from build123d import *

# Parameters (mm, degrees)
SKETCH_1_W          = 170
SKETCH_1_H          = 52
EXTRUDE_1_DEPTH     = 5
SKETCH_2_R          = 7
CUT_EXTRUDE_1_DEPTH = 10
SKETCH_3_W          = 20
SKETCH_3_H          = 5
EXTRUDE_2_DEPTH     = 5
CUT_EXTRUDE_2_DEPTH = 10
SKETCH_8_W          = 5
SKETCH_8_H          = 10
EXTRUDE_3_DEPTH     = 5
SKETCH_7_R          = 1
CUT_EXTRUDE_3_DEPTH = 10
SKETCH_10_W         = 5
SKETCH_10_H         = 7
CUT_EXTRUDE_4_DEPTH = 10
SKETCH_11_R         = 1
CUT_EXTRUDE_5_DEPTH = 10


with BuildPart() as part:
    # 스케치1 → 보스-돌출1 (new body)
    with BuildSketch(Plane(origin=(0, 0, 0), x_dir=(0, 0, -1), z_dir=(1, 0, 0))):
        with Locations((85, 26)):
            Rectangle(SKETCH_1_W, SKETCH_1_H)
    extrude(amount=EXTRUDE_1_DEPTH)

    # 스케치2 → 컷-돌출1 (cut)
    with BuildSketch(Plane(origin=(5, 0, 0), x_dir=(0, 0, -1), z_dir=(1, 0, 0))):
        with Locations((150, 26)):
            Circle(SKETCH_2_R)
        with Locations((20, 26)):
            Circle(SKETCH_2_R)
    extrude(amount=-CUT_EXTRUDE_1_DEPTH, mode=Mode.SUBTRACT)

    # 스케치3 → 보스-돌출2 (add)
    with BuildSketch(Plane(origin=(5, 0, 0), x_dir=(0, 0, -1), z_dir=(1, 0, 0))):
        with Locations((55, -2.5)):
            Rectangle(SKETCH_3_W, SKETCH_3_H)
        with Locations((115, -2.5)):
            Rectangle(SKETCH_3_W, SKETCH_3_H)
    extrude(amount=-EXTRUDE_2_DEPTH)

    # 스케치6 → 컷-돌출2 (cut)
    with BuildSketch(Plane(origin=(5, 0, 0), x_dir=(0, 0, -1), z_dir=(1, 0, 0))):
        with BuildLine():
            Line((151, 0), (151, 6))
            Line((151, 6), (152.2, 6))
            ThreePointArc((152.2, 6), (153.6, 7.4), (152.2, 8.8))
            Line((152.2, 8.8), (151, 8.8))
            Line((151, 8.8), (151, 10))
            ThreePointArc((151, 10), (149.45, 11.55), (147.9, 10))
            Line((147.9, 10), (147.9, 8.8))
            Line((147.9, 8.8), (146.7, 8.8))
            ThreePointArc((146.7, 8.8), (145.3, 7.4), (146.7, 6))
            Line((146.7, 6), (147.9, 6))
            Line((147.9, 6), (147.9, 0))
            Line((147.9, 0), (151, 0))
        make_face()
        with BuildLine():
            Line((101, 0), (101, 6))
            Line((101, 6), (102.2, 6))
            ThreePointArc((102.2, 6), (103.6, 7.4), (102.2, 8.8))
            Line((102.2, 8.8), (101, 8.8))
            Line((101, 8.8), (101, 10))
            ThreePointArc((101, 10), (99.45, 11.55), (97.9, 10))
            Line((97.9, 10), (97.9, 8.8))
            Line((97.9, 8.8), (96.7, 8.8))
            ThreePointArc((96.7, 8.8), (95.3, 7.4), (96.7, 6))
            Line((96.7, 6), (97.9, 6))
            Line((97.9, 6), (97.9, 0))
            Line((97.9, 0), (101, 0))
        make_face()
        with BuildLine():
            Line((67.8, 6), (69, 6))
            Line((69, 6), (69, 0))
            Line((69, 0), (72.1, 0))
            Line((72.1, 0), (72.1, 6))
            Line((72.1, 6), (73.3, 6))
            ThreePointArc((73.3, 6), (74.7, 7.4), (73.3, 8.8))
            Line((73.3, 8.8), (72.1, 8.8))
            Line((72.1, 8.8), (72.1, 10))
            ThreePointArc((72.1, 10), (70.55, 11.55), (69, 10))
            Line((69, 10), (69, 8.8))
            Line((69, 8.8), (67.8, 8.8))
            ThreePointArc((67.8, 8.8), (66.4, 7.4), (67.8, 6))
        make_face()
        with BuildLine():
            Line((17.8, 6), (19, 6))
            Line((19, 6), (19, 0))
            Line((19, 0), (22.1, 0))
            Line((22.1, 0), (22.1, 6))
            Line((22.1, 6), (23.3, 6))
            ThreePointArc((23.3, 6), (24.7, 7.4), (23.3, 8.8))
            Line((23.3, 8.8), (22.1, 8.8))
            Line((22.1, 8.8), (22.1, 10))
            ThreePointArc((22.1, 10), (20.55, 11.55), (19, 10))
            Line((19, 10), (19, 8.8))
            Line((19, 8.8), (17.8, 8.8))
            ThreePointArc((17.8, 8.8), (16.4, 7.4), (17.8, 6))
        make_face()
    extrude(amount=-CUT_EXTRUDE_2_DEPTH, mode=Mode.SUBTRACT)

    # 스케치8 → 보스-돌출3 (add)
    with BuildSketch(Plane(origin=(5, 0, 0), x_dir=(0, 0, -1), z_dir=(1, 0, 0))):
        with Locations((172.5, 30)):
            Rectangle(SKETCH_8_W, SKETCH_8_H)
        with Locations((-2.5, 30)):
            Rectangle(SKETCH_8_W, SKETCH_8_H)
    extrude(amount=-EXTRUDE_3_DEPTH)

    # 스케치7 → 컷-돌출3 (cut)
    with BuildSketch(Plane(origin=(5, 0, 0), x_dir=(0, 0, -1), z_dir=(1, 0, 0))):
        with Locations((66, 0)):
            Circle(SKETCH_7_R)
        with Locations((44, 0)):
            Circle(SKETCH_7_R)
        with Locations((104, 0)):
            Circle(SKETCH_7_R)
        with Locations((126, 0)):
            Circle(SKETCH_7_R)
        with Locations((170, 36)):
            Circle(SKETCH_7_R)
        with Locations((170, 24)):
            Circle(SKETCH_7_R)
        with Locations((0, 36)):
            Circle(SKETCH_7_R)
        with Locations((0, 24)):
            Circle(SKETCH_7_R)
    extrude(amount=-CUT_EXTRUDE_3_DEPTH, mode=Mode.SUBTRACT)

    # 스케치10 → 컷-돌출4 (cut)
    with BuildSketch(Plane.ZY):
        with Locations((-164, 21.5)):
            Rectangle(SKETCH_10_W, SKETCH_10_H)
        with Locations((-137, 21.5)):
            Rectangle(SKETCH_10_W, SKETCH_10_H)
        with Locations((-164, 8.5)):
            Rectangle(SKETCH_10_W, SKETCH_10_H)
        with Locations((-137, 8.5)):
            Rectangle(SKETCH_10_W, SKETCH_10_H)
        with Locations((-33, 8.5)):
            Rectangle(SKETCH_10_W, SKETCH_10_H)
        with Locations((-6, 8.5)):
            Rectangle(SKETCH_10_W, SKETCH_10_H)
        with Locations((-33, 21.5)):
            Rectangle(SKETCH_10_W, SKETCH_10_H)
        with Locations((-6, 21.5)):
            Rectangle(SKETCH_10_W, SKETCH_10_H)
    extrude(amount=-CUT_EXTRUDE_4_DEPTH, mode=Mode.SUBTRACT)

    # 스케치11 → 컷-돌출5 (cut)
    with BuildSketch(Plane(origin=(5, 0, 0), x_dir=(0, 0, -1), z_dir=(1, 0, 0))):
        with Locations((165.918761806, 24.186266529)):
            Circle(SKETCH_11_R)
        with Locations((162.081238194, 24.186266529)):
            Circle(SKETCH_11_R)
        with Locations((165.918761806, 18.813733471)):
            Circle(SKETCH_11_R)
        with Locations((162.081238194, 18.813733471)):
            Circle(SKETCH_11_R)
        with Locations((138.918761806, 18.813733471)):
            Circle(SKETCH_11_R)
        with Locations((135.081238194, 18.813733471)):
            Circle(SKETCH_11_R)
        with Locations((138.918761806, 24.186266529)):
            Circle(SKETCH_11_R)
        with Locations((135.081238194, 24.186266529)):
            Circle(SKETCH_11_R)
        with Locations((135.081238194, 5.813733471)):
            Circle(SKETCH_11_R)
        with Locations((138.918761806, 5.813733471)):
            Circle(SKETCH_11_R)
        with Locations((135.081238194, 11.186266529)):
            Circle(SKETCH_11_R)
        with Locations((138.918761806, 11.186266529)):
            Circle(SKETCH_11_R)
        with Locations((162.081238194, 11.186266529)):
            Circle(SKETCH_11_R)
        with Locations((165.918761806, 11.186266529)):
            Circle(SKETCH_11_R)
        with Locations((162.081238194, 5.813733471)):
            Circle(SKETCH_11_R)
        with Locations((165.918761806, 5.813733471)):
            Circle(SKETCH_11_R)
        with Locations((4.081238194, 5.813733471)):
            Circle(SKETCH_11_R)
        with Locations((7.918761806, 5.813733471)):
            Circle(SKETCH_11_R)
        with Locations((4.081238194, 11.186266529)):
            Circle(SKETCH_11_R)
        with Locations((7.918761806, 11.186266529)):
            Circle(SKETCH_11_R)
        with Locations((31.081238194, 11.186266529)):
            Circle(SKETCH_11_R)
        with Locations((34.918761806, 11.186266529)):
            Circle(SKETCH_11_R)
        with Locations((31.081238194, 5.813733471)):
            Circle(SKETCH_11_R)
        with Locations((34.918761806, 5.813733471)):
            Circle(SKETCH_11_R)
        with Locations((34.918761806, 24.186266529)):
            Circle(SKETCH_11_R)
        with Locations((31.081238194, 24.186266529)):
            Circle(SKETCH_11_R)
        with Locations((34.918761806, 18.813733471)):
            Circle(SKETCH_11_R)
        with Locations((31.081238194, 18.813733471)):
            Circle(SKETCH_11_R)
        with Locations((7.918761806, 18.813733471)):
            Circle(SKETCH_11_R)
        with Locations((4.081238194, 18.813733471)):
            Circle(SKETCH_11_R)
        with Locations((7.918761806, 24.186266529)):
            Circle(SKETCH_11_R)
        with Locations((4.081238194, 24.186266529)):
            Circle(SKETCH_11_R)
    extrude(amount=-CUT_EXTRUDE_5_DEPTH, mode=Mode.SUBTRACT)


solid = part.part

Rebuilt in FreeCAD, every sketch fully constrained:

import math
import FreeCAD as App
import Part
import Sketcher

V = App.Vector
Q = App.Units.Quantity

doc = App.newDocument("Part")
body = doc.addObject("PartDesign::Body", "Body")

# Sketch on YZ plane
sketch1 = body.newObject("Sketcher::SketchObject", "Sketch")
sketch1.AttachmentSupport = (doc.getObject("YZ_Plane"), [""])
sketch1.MapMode = "FlatFace"
sketch1.addGeometry([
    Part.LineSegment(V(52, 0, 0), V(0, 0, 0)),
    Part.LineSegment(V(0, 0, 0), V(0, -170, 0)),
    Part.LineSegment(V(0, -170, 0), V(52, -170, 0)),
    Part.LineSegment(V(52, -170, 0), V(52, 0, 0)),
], False)
sketch1.addConstraint([
    Sketcher.Constraint("Coincident", 0, 2, 1, 1),
    Sketcher.Constraint("Coincident", 1, 2, 2, 1),
    Sketcher.Constraint("Coincident", 2, 2, 3, 1),
    Sketcher.Constraint("Coincident", 3, 2, 0, 1),
    Sketcher.Constraint("Horizontal", 0),
    Sketcher.Constraint("Vertical", 1),
    Sketcher.Constraint("Horizontal", 2),
    Sketcher.Constraint("Vertical", 3),
    Sketcher.Constraint("Coincident", 0, 2, -1, 1),
    Sketcher.Constraint("DistanceX", 0, 2, 0, 1, Q("52 mm")),
    Sketcher.Constraint("DistanceY", 1, 2, 1, 1, Q("170 mm")),
])
pad1 = body.newObject("PartDesign::Pad", "Pad")
pad1.Profile = sketch1
pad1.Length = 5

# Sketch on YZ plane
sketch2 = body.newObject("Sketcher::SketchObject", "Sketch001")
sketch2.AttachmentSupport = (doc.getObject("YZ_Plane"), [""])
sketch2.MapMode = "FlatFace"
sketch2.AttachmentOffset = App.Placement(V(0, 0, 5), App.Rotation())
sketch2.addGeometry([
    Part.Circle(V(26, -150, 0), V(0, 0, 1), 7),
    Part.Circle(V(26, -20, 0), V(0, 0, 1), 7),
], False)
sketch2.addConstraint([
    Sketcher.Constraint("Equal", 0, 1),
    Sketcher.Constraint("Vertical", 0, 3, 1, 3),
    Sketcher.Constraint("Diameter", 0, Q("14 mm")),
    Sketcher.Constraint("DistanceX", -1, 1, 0, 3, Q("26 mm")),
    Sketcher.Constraint("DistanceY", 0, 3, -1, 1, Q("150 mm")),
    Sketcher.Constraint("DistanceY", 1, 3, -1, 1, Q("20 mm")),
])
pocket1 = body.newObject("PartDesign::Pocket", "Pocket")
pocket1.Profile = sketch2
pocket1.Length = 10

# Sketch on YZ plane
sketch3 = body.newObject("Sketcher::SketchObject", "Sketch002")
sketch3.AttachmentSupport = (doc.getObject("YZ_Plane"), [""])
sketch3.MapMode = "FlatFace"
sketch3.AttachmentOffset = App.Placement(V(0, 0, 5), App.Rotation())
sketch3.addGeometry([
    Part.LineSegment(V(0, -45, 0), V(-5, -45, 0)),  # 0
    Part.LineSegment(V(-5, -45, 0), V(-5, -65, 0)),  # 1
    Part.LineSegment(V(-5, -65, 0), V(0, -65, 0)),  # 2
    Part.LineSegment(V(0, -65, 0), V(0, -45, 0)),  # 3
    Part.LineSegment(V(0, -105, 0), V(-5, -105, 0)),  # 4
    Part.LineSegment(V(-5, -105, 0), V(-5, -125, 0)),  # 5
    Part.LineSegment(V(-5, -125, 0), V(0, -125, 0)),  # 6
    Part.LineSegment(V(0, -125, 0), V(0, -105, 0)),  # 7
], False)
sketch3.addConstraint([
    Sketcher.Constraint("Coincident", 0, 2, 1, 1),
    Sketcher.Constraint("Coincident", 1, 2, 2, 1),
    Sketcher.Constraint("Coincident", 2, 2, 3, 1),
    Sketcher.Constraint("Coincident", 3, 2, 0, 1),
    Sketcher.Constraint("Coincident", 4, 2, 5, 1),
    Sketcher.Constraint("Coincident", 5, 2, 6, 1),
    Sketcher.Constraint("Coincident", 6, 2, 7, 1),
    Sketcher.Constraint("Coincident", 7, 2, 4, 1),
    Sketcher.Constraint("Horizontal", 0),
    Sketcher.Constraint("Vertical", 1),
    Sketcher.Constraint("Horizontal", 2),
    Sketcher.Constraint("Vertical", 3),
    Sketcher.Constraint("Horizontal", 4),
    Sketcher.Constraint("Vertical", 5),
    Sketcher.Constraint("Horizontal", 6),
    Sketcher.Constraint("Vertical", 7),
    Sketcher.Constraint("PointOnObject", 2, 2, -2),
    Sketcher.Constraint("PointOnObject", 6, 2, -2),
    Sketcher.Constraint("Vertical", 1, 2, 4, 2),
    Sketcher.Constraint("Equal", 3, 5),
    Sketcher.Constraint("DistanceX", 0, 2, 0, 1, Q("5 mm")),
    Sketcher.Constraint("DistanceY", 1, 2, 1, 1, Q("20 mm")),
    Sketcher.Constraint("DistanceY", 0, 2, -1, 1, Q("45 mm")),
    Sketcher.Constraint("DistanceY", 4, 2, -1, 1, Q("105 mm")),
])
pad2 = body.newObject("PartDesign::Pad", "Pad001")
pad2.Profile = sketch3
pad2.Length = 5
pad2.Reversed = True

# Sketch on YZ plane
sketch4 = body.newObject("Sketcher::SketchObject", "Sketch003")
sketch4.AttachmentSupport = (doc.getObject("YZ_Plane"), [""])
sketch4.MapMode = "FlatFace"
sketch4.AttachmentOffset = App.Placement(V(0, 0, 5), App.Rotation())
sketch4.addGeometry([
    Part.LineSegment(V(0, -151, 0), V(6, -151, 0)),  # 0
    Part.LineSegment(V(6, -151, 0), V(6, -152.2, 0)),  # 1
    Part.ArcOfCircle(Part.Circle(V(7.4, -152.2, 0), V(0, 0, 1), 1.4), math.radians(180), math.radians(360)),  # 2
    Part.LineSegment(V(8.8, -152.2, 0), V(8.8, -151, 0)),  # 3
    Part.LineSegment(V(8.8, -151, 0), V(10, -151, 0)),  # 4
    Part.ArcOfCircle(Part.Circle(V(10, -149.4, 0), V(0, 0, 1), 1.6), math.radians(-90), math.radians(90)),  # 5
    Part.LineSegment(V(10, -147.9, 0), V(8.8, -147.9, 0)),  # 6
    Part.LineSegment(V(8.8, -147.9, 0), V(8.8, -146.7, 0)),  # 7
    Part.ArcOfCircle(Part.Circle(V(7.4, -146.7, 0), V(0, 0, 1), 1.4), math.radians(0), math.radians(180)),  # 8
    Part.LineSegment(V(6, -146.7, 0), V(6, -147.9, 0)),  # 9
    Part.LineSegment(V(6, -147.9, 0), V(0, -147.9, 0)),  # 10
    Part.LineSegment(V(0, -147.9, 0), V(0, -151, 0)),  # 11
    Part.LineSegment(V(0, -101, 0), V(6, -101, 0)),  # 12
    Part.LineSegment(V(6, -101, 0), V(6, -102.2, 0)),  # 13
    Part.ArcOfCircle(Part.Circle(V(7.4, -102.2, 0), V(0, 0, 1), 1.4), math.radians(180), math.radians(360)),  # 14
    Part.LineSegment(V(8.8, -102.2, 0), V(8.8, -101, 0)),  # 15
    Part.LineSegment(V(8.8, -101, 0), V(10, -101, 0)),  # 16
    Part.ArcOfCircle(Part.Circle(V(10, -99.5, 0), V(0, 0, 1), 1.6), math.radians(-90), math.radians(90)),  # 17
    Part.LineSegment(V(10, -97.9, 0), V(8.8, -97.9, 0)),  # 18
    Part.LineSegment(V(8.8, -97.9, 0), V(8.8, -96.7, 0)),  # 19
    Part.ArcOfCircle(Part.Circle(V(7.4, -96.7, 0), V(0, 0, 1), 1.4), math.radians(0), math.radians(180)),  # 20
    Part.LineSegment(V(6, -96.7, 0), V(6, -97.9, 0)),  # 21
    Part.LineSegment(V(6, -97.9, 0), V(0, -97.9, 0)),  # 22
    Part.LineSegment(V(0, -97.9, 0), V(0, -101, 0)),  # 23
    Part.LineSegment(V(6, -67.8, 0), V(6, -69, 0)),  # 24
    Part.LineSegment(V(6, -69, 0), V(0, -69, 0)),  # 25
    Part.LineSegment(V(0, -69, 0), V(0, -72.1, 0)),  # 26
    Part.LineSegment(V(0, -72.1, 0), V(6, -72.1, 0)),  # 27
    Part.LineSegment(V(6, -72.1, 0), V(6, -73.3, 0)),  # 28
    Part.ArcOfCircle(Part.Circle(V(7.4, -73.3, 0), V(0, 0, 1), 1.4), math.radians(180), math.radians(360)),  # 29
    Part.LineSegment(V(8.8, -73.3, 0), V(8.8, -72.1, 0)),  # 30
    Part.LineSegment(V(8.8, -72.1, 0), V(10, -72.1, 0)),  # 31
    Part.ArcOfCircle(Part.Circle(V(10, -70.5, 0), V(0, 0, 1), 1.6), math.radians(-90), math.radians(90)),  # 32
    Part.LineSegment(V(10, -69, 0), V(8.8, -69, 0)),  # 33
    Part.LineSegment(V(8.8, -69, 0), V(8.8, -67.8, 0)),  # 34
    Part.ArcOfCircle(Part.Circle(V(7.4, -67.8, 0), V(0, 0, 1), 1.4), math.radians(0), math.radians(180)),  # 35
    Part.LineSegment(V(6, -17.8, 0), V(6, -19, 0)),  # 36
    Part.LineSegment(V(6, -19, 0), V(0, -19, 0)),  # 37
    Part.LineSegment(V(0, -19, 0), V(0, -22.1, 0)),  # 38
    Part.LineSegment(V(0, -22.1, 0), V(6, -22.1, 0)),  # 39
    Part.LineSegment(V(6, -22.1, 0), V(6, -23.3, 0)),  # 40
    Part.ArcOfCircle(Part.Circle(V(7.4, -23.3, 0), V(0, 0, 1), 1.4), math.radians(180), math.radians(360)),  # 41
    Part.LineSegment(V(8.8, -23.3, 0), V(8.8, -22.1, 0)),  # 42
    Part.LineSegment(V(8.8, -22.1, 0), V(10, -22.1, 0)),  # 43
    Part.ArcOfCircle(Part.Circle(V(10, -20.6, 0), V(0, 0, 1), 1.6), math.radians(-90), math.radians(90)),  # 44
    Part.LineSegment(V(10, -19, 0), V(8.8, -19, 0)),  # 45
    Part.LineSegment(V(8.8, -19, 0), V(8.8, -17.8, 0)),  # 46
    Part.ArcOfCircle(Part.Circle(V(7.4, -17.8, 0), V(0, 0, 1), 1.4), math.radians(0), math.radians(180)),  # 47
], False)
sketch4.addConstraint([
    Sketcher.Constraint("Coincident", 0, 2, 1, 1),
    Sketcher.Constraint("Tangent", 1, 2, 2, 1),
    Sketcher.Constraint("Tangent", 2, 2, 3, 1),
    Sketcher.Constraint("Coincident", 3, 2, 4, 1),
    Sketcher.Constraint("Tangent", 4, 2, 5, 1),
    Sketcher.Constraint("Tangent", 5, 2, 6, 1),
    Sketcher.Constraint("Coincident", 6, 2, 7, 1),
    Sketcher.Constraint("Tangent", 7, 2, 8, 1),
    Sketcher.Constraint("Tangent", 8, 2, 9, 1),
    Sketcher.Constraint("Coincident", 9, 2, 10, 1),
    Sketcher.Constraint("Coincident", 10, 2, 11, 1),
    Sketcher.Constraint("Coincident", 11, 2, 0, 1),
    Sketcher.Constraint("Coincident", 12, 2, 13, 1),
    Sketcher.Constraint("Tangent", 13, 2, 14, 1),
    Sketcher.Constraint("Tangent", 14, 2, 15, 1),
    Sketcher.Constraint("Coincident", 15, 2, 16, 1),
    Sketcher.Constraint("Tangent", 16, 2, 17, 1),
    Sketcher.Constraint("Tangent", 17, 2, 18, 1),
    Sketcher.Constraint("Coincident", 18, 2, 19, 1),
    Sketcher.Constraint("Tangent", 19, 2, 20, 1),
    Sketcher.Constraint("Tangent", 20, 2, 21, 1),
    Sketcher.Constraint("Coincident", 21, 2, 22, 1),
    Sketcher.Constraint("Coincident", 22, 2, 23, 1),
    Sketcher.Constraint("Coincident", 23, 2, 12, 1),
    Sketcher.Constraint("Coincident", 24, 2, 25, 1),
    Sketcher.Constraint("Coincident", 25, 2, 26, 1),
    Sketcher.Constraint("Coincident", 26, 2, 27, 1),
    Sketcher.Constraint("Coincident", 27, 2, 28, 1),
    Sketcher.Constraint("Tangent", 28, 2, 29, 1),
    Sketcher.Constraint("Tangent", 29, 2, 30, 1),
    Sketcher.Constraint("Coincident", 30, 2, 31, 1),
    Sketcher.Constraint("Tangent", 31, 2, 32, 1),
    Sketcher.Constraint("Tangent", 32, 2, 33, 1),
    Sketcher.Constraint("Coincident", 33, 2, 34, 1),
    Sketcher.Constraint("Tangent", 34, 2, 35, 1),
    Sketcher.Constraint("Tangent", 35, 2, 24, 1),
    Sketcher.Constraint("Coincident", 36, 2, 37, 1),
    Sketcher.Constraint("Coincident", 37, 2, 38, 1),
    Sketcher.Constraint("Coincident", 38, 2, 39, 1),
    Sketcher.Constraint("Coincident", 39, 2, 40, 1),
    Sketcher.Constraint("Tangent", 40, 2, 41, 1),
    Sketcher.Constraint("Tangent", 41, 2, 42, 1),
    Sketcher.Constraint("Coincident", 42, 2, 43, 1),
    Sketcher.Constraint("Tangent", 43, 2, 44, 1),
    Sketcher.Constraint("Tangent", 44, 2, 45, 1),
    Sketcher.Constraint("Coincident", 45, 2, 46, 1),
    Sketcher.Constraint("Tangent", 46, 2, 47, 1),
    Sketcher.Constraint("Tangent", 47, 2, 36, 1),
    Sketcher.Constraint("Horizontal", 0),
    Sketcher.Constraint("Vertical", 1),
    Sketcher.Constraint("Vertical", 3),
    Sketcher.Constraint("Horizontal", 4),
    Sketcher.Constraint("Horizontal", 6),
    Sketcher.Constraint("Vertical", 7),
    Sketcher.Constraint("Vertical", 9),
    Sketcher.Constraint("Horizontal", 10),
    Sketcher.Constraint("Vertical", 11),
    Sketcher.Constraint("Horizontal", 12),
    Sketcher.Constraint("Vertical", 13),
    Sketcher.Constraint("Vertical", 15),
    Sketcher.Constraint("Horizontal", 16),
    Sketcher.Constraint("Horizontal", 18),
    Sketcher.Constraint("Vertical", 19),
    Sketcher.Constraint("Vertical", 21),
    Sketcher.Constraint("Horizontal", 22),
    Sketcher.Constraint("Vertical", 23),
    Sketcher.Constraint("Vertical", 24),
    Sketcher.Constraint("Horizontal", 25),
    Sketcher.Constraint("Vertical", 26),
    Sketcher.Constraint("Horizontal", 27),
    Sketcher.Constraint("Vertical", 28),
    Sketcher.Constraint("Vertical", 30),
    Sketcher.Constraint("Horizontal", 31),
    Sketcher.Constraint("Horizontal", 33),
    Sketcher.Constraint("Vertical", 34),
    Sketcher.Constraint("Vertical", 36),
    Sketcher.Constraint("Horizontal", 37),
    Sketcher.Constraint("Vertical", 38),
    Sketcher.Constraint("Horizontal", 39),
    Sketcher.Constraint("Vertical", 40),
    Sketcher.Constraint("Vertical", 42),
    Sketcher.Constraint("Horizontal", 43),
    Sketcher.Constraint("Horizontal", 45),
    Sketcher.Constraint("Vertical", 46),
    Sketcher.Constraint("Equal", 2, 8),
    Sketcher.Constraint("Equal", 8, 14),
    Sketcher.Constraint("Equal", 5, 17),
    Sketcher.Constraint("Equal", 14, 20),
    Sketcher.Constraint("Equal", 20, 29),
    Sketcher.Constraint("Equal", 17, 32),
    Sketcher.Constraint("Equal", 29, 35),
    Sketcher.Constraint("Equal", 35, 41),
    Sketcher.Constraint("Equal", 32, 44),
    Sketcher.Constraint("Equal", 41, 47),
    Sketcher.Constraint("PointOnObject", 10, 2, -2),
    Sketcher.Constraint("PointOnObject", 22, 2, -2),
    Sketcher.Constraint("PointOnObject", 25, 2, -2),
    Sketcher.Constraint("PointOnObject", 37, 2, -2),
    Sketcher.Constraint("Horizontal", 0, 2, 3, 2),
    Sketcher.Constraint("Horizontal", 6, 2, 9, 2),
    Sketcher.Constraint("Horizontal", 12, 2, 15, 2),
    Sketcher.Constraint("Horizontal", 18, 2, 21, 2),
    Sketcher.Constraint("Horizontal", 27, 2, 30, 2),
    Sketcher.Constraint("Horizontal", 25, 2, 32, 2),
    Sketcher.Constraint("Horizontal", 39, 2, 42, 2),
    Sketcher.Constraint("Horizontal", 37, 2, 44, 2),
    Sketcher.Constraint("Vertical", 2, 3, 8, 3),
    Sketcher.Constraint("Vertical", 8, 3, 14, 3),
    Sketcher.Constraint("Vertical", 5, 3, 17, 3),
    Sketcher.Constraint("Vertical", 14, 3, 20, 3),
    Sketcher.Constraint("Vertical", 20, 3, 29, 3),
    Sketcher.Constraint("Vertical", 17, 3, 32, 3),
    Sketcher.Constraint("Vertical", 29, 3, 35, 3),
    Sketcher.Constraint("Vertical", 35, 3, 41, 3),
    Sketcher.Constraint("Vertical", 32, 3, 44, 3),
    Sketcher.Constraint("Vertical", 41, 3, 47, 3),
    Sketcher.Constraint("Equal", 45, 1),
    Sketcher.Constraint("Equal", 3, 7),
    Sketcher.Constraint("Equal", 9, 13),
    Sketcher.Constraint("Equal", 15, 19),
    Sketcher.Constraint("Equal", 21, 24),
    Sketcher.Constraint("Equal", 24, 28),
    Sketcher.Constraint("Equal", 34, 36),
    Sketcher.Constraint("Equal", 36, 40),
    Sketcher.Constraint("Radius", 2, Q("1.4 mm")),
    Sketcher.Constraint("DistanceX", 0, 1, 0, 2, Q("6 mm")),
    Sketcher.Constraint("Radius", 5, Q("1.55 mm")),
    Sketcher.Constraint("DistanceX", 4, 1, 4, 2, Q("1.2 mm")),
    Sketcher.Constraint("DistanceY", 0, 2, -1, 1, Q("151 mm")),
    Sketcher.Constraint("DistanceY", 12, 2, -1, 1, Q("101 mm")),
    Sketcher.Constraint("DistanceY", 24, 2, -1, 1, Q("69 mm")),
    Sketcher.Constraint("DistanceY", 36, 2, -1, 1, Q("19 mm")),
])
pocket2 = body.newObject("PartDesign::Pocket", "Pocket001")
pocket2.Profile = sketch4
pocket2.Length = 10

# Sketch on YZ plane
sketch5 = body.newObject("Sketcher::SketchObject", "Sketch004")
sketch5.AttachmentSupport = (doc.getObject("YZ_Plane"), [""])
sketch5.MapMode = "FlatFace"
sketch5.AttachmentOffset = App.Placement(V(0, 0, 5), App.Rotation())
sketch5.addGeometry([
    Part.LineSegment(V(35, -170, 0), V(25, -170, 0)),  # 0
    Part.LineSegment(V(25, -170, 0), V(25, -175, 0)),  # 1
    Part.LineSegment(V(25, -175, 0), V(35, -175, 0)),  # 2
    Part.LineSegment(V(35, -175, 0), V(35, -170, 0)),  # 3
    Part.LineSegment(V(35, 5, 0), V(25, 5, 0)),  # 4
    Part.LineSegment(V(25, 5, 0), V(25, 0, 0)),  # 5
    Part.LineSegment(V(25, 0, 0), V(35, 0, 0)),  # 6
    Part.LineSegment(V(35, 0, 0), V(35, 5, 0)),  # 7
], False)
sketch5.addConstraint([
    Sketcher.Constraint("Coincident", 0, 2, 1, 1),
    Sketcher.Constraint("Coincident", 1, 2, 2, 1),
    Sketcher.Constraint("Coincident", 2, 2, 3, 1),
    Sketcher.Constraint("Coincident", 3, 2, 0, 1),
    Sketcher.Constraint("Coincident", 4, 2, 5, 1),
    Sketcher.Constraint("Coincident", 5, 2, 6, 1),
    Sketcher.Constraint("Coincident", 6, 2, 7, 1),
    Sketcher.Constraint("Coincident", 7, 2, 4, 1),
    Sketcher.Constraint("Horizontal", 0),
    Sketcher.Constraint("Vertical", 1),
    Sketcher.Constraint("Horizontal", 2),
    Sketcher.Constraint("Vertical", 3),
    Sketcher.Constraint("Horizontal", 4),
    Sketcher.Constraint("Vertical", 5),
    Sketcher.Constraint("Horizontal", 6),
    Sketcher.Constraint("Vertical", 7),
    Sketcher.Constraint("PointOnObject", 5, 2, -1),
    Sketcher.Constraint("Vertical", 1, 2, 4, 2),
    Sketcher.Constraint("Vertical", 3, 2, 6, 2),
    Sketcher.Constraint("Equal", 3, 5),
    Sketcher.Constraint("DistanceX", 0, 2, 0, 1, Q("10 mm")),
    Sketcher.Constraint("DistanceY", 1, 2, 1, 1, Q("5 mm")),
    Sketcher.Constraint("DistanceX", -1, 1, 0, 2, Q("25 mm")),
    Sketcher.Constraint("DistanceY", 0, 2, -1, 1, Q("170 mm")),
])
pad3 = body.newObject("PartDesign::Pad", "Pad002")
pad3.Profile = sketch5
pad3.Length = 5
pad3.Reversed = True

# Sketch on YZ plane
sketch6 = body.newObject("Sketcher::SketchObject", "Sketch005")
sketch6.AttachmentSupport = (doc.getObject("YZ_Plane"), [""])
sketch6.MapMode = "FlatFace"
sketch6.AttachmentOffset = App.Placement(V(0, 0, 5), App.Rotation())
sketch6.addGeometry([
    Part.Circle(V(0, -66, 0), V(0, 0, 1), 1),  # 0
    Part.Circle(V(0, -44, 0), V(0, 0, 1), 1),  # 1
    Part.Circle(V(0, -104, 0), V(0, 0, 1), 1),  # 2
    Part.Circle(V(0, -126, 0), V(0, 0, 1), 1),  # 3
    Part.Circle(V(36, -170, 0), V(0, 0, 1), 1),  # 4
    Part.Circle(V(24, -170, 0), V(0, 0, 1), 1),  # 5
    Part.Circle(V(36, 0, 0), V(0, 0, 1), 1),  # 6
    Part.Circle(V(24, 0, 0), V(0, 0, 1), 1),  # 7
], False)
sketch6.addConstraint([
    Sketcher.Constraint("Equal", 0, 1),
    Sketcher.Constraint("Equal", 1, 2),
    Sketcher.Constraint("Equal", 2, 3),
    Sketcher.Constraint("Equal", 3, 4),
    Sketcher.Constraint("Equal", 4, 5),
    Sketcher.Constraint("Equal", 5, 6),
    Sketcher.Constraint("Equal", 6, 7),
    Sketcher.Constraint("PointOnObject", 0, 3, -2),
    Sketcher.Constraint("PointOnObject", 1, 3, -2),
    Sketcher.Constraint("PointOnObject", 2, 3, -2),
    Sketcher.Constraint("PointOnObject", 3, 3, -2),
    Sketcher.Constraint("PointOnObject", 6, 3, -1),
    Sketcher.Constraint("PointOnObject", 7, 3, -1),
    Sketcher.Constraint("Horizontal", 4, 3, 5, 3),
    Sketcher.Constraint("Vertical", 4, 3, 6, 3),
    Sketcher.Constraint("Vertical", 5, 3, 7, 3),
    Sketcher.Constraint("Diameter", 0, Q("2 mm")),
    Sketcher.Constraint("DistanceY", 0, 3, -1, 1, Q("66 mm")),
    Sketcher.Constraint("DistanceY", 1, 3, -1, 1, Q("44 mm")),
    Sketcher.Constraint("DistanceY", 2, 3, -1, 1, Q("104 mm")),
    Sketcher.Constraint("DistanceY", 3, 3, -1, 1, Q("126 mm")),
    Sketcher.Constraint("DistanceX", -1, 1, 4, 3, Q("36 mm")),
    Sketcher.Constraint("DistanceY", 4, 3, -1, 1, Q("170 mm")),
    Sketcher.Constraint("DistanceX", -1, 1, 5, 3, Q("24 mm")),
])
pocket3 = body.newObject("PartDesign::Pocket", "Pocket002")
pocket3.Profile = sketch6
pocket3.Length = 10

# Sketch on YZ plane
sketch7 = body.newObject("Sketcher::SketchObject", "Sketch006")
sketch7.AttachmentSupport = (doc.getObject("YZ_Plane"), [""])
sketch7.MapMode = "FlatFace"
sketch7.addGeometry([
    Part.LineSegment(V(25, -166, 0), V(18, -166, 0)),  # 0
    Part.LineSegment(V(18, -166, 0), V(18, -162, 0)),  # 1
    Part.LineSegment(V(18, -162, 0), V(25, -162, 0)),  # 2
    Part.LineSegment(V(25, -162, 0), V(25, -166, 0)),  # 3
    Part.LineSegment(V(25, -140, 0), V(18, -140, 0)),  # 4
    Part.LineSegment(V(18, -140, 0), V(18, -134, 0)),  # 5
    Part.LineSegment(V(18, -134, 0), V(25, -134, 0)),  # 6
    Part.LineSegment(V(25, -134, 0), V(25, -140, 0)),  # 7
    Part.LineSegment(V(12, -166, 0), V(5, -166, 0)),  # 8
    Part.LineSegment(V(5, -166, 0), V(5, -162, 0)),  # 9
    Part.LineSegment(V(5, -162, 0), V(12, -162, 0)),  # 10
    Part.LineSegment(V(12, -162, 0), V(12, -166, 0)),  # 11
    Part.LineSegment(V(12, -140, 0), V(5, -140, 0)),  # 12
    Part.LineSegment(V(5, -140, 0), V(5, -134, 0)),  # 13
    Part.LineSegment(V(5, -134, 0), V(12, -134, 0)),  # 14
    Part.LineSegment(V(12, -134, 0), V(12, -140, 0)),  # 15
    Part.LineSegment(V(12, -36, 0), V(5, -36, 0)),  # 16
    Part.LineSegment(V(5, -36, 0), V(5, -30, 0)),  # 17
    Part.LineSegment(V(5, -30, 0), V(12, -30, 0)),  # 18
    Part.LineSegment(V(12, -30, 0), V(12, -36, 0)),  # 19
    Part.LineSegment(V(12, -8, 0), V(5, -8, 0)),  # 20
    Part.LineSegment(V(5, -8, 0), V(5, -4, 0)),  # 21
    Part.LineSegment(V(5, -4, 0), V(12, -4, 0)),  # 22
    Part.LineSegment(V(12, -4, 0), V(12, -8, 0)),  # 23
    Part.LineSegment(V(25, -36, 0), V(18, -36, 0)),  # 24
    Part.LineSegment(V(18, -36, 0), V(18, -30, 0)),  # 25
    Part.LineSegment(V(18, -30, 0), V(25, -30, 0)),  # 26
    Part.LineSegment(V(25, -30, 0), V(25, -36, 0)),  # 27
    Part.LineSegment(V(25, -8, 0), V(18, -8, 0)),  # 28
    Part.LineSegment(V(18, -8, 0), V(18, -4, 0)),  # 29
    Part.LineSegment(V(18, -4, 0), V(25, -4, 0)),  # 30
    Part.LineSegment(V(25, -4, 0), V(25, -8, 0)),  # 31
], False)
sketch7.addConstraint([
    Sketcher.Constraint("Coincident", 0, 2, 1, 1),
    Sketcher.Constraint("Coincident", 1, 2, 2, 1),
    Sketcher.Constraint("Coincident", 2, 2, 3, 1),
    Sketcher.Constraint("Coincident", 3, 2, 0, 1),
    Sketcher.Constraint("Coincident", 4, 2, 5, 1),
    Sketcher.Constraint("Coincident", 5, 2, 6, 1),
    Sketcher.Constraint("Coincident", 6, 2, 7, 1),
    Sketcher.Constraint("Coincident", 7, 2, 4, 1),
    Sketcher.Constraint("Coincident", 8, 2, 9, 1),
    Sketcher.Constraint("Coincident", 9, 2, 10, 1),
    Sketcher.Constraint("Coincident", 10, 2, 11, 1),
    Sketcher.Constraint("Coincident", 11, 2, 8, 1),
    Sketcher.Constraint("Coincident", 12, 2, 13, 1),
    Sketcher.Constraint("Coincident", 13, 2, 14, 1),
    Sketcher.Constraint("Coincident", 14, 2, 15, 1),
    Sketcher.Constraint("Coincident", 15, 2, 12, 1),
    Sketcher.Constraint("Coincident", 16, 2, 17, 1),
    Sketcher.Constraint("Coincident", 17, 2, 18, 1),
    Sketcher.Constraint("Coincident", 18, 2, 19, 1),
    Sketcher.Constraint("Coincident", 19, 2, 16, 1),
    Sketcher.Constraint("Coincident", 20, 2, 21, 1),
    Sketcher.Constraint("Coincident", 21, 2, 22, 1),
    Sketcher.Constraint("Coincident", 22, 2, 23, 1),
    Sketcher.Constraint("Coincident", 23, 2, 20, 1),
    Sketcher.Constraint("Coincident", 24, 2, 25, 1),
    Sketcher.Constraint("Coincident", 25, 2, 26, 1),
    Sketcher.Constraint("Coincident", 26, 2, 27, 1),
    Sketcher.Constraint("Coincident", 27, 2, 24, 1),
    Sketcher.Constraint("Coincident", 28, 2, 29, 1),
    Sketcher.Constraint("Coincident", 29, 2, 30, 1),
    Sketcher.Constraint("Coincident", 30, 2, 31, 1),
    Sketcher.Constraint("Coincident", 31, 2, 28, 1),
    Sketcher.Constraint("Horizontal", 0),
    Sketcher.Constraint("Vertical", 1),
    Sketcher.Constraint("Horizontal", 2),
    Sketcher.Constraint("Vertical", 3),
    Sketcher.Constraint("Horizontal", 4),
    Sketcher.Constraint("Vertical", 5),
    Sketcher.Constraint("Horizontal", 6),
    Sketcher.Constraint("Vertical", 7),
    Sketcher.Constraint("Horizontal", 8),
    Sketcher.Constraint("Vertical", 9),
    Sketcher.Constraint("Horizontal", 10),
    Sketcher.Constraint("Vertical", 11),
    Sketcher.Constraint("Horizontal", 12),
    Sketcher.Constraint("Vertical", 13),
    Sketcher.Constraint("Horizontal", 14),
    Sketcher.Constraint("Vertical", 15),
    Sketcher.Constraint("Horizontal", 16),
    Sketcher.Constraint("Vertical", 17),
    Sketcher.Constraint("Horizontal", 18),
    Sketcher.Constraint("Vertical", 19),
    Sketcher.Constraint("Horizontal", 20),
    Sketcher.Constraint("Vertical", 21),
    Sketcher.Constraint("Horizontal", 22),
    Sketcher.Constraint("Vertical", 23),
    Sketcher.Constraint("Horizontal", 24),
    Sketcher.Constraint("Vertical", 25),
    Sketcher.Constraint("Horizontal", 26),
    Sketcher.Constraint("Vertical", 27),
    Sketcher.Constraint("Horizontal", 28),
    Sketcher.Constraint("Vertical", 29),
    Sketcher.Constraint("Horizontal", 30),
    Sketcher.Constraint("Vertical", 31),
    Sketcher.Constraint("Horizontal", 3, 2, 8, 2),
    Sketcher.Constraint("Horizontal", 2, 2, 9, 2),
    Sketcher.Constraint("Horizontal", 7, 2, 12, 2),
    Sketcher.Constraint("Horizontal", 6, 2, 13, 2),
    Sketcher.Constraint("Horizontal", 19, 2, 24, 2),
    Sketcher.Constraint("Horizontal", 18, 2, 25, 2),
    Sketcher.Constraint("Horizontal", 23, 2, 28, 2),
    Sketcher.Constraint("Horizontal", 22, 2, 29, 2),
    Sketcher.Constraint("Vertical", 1, 2, 4, 2),
    Sketcher.Constraint("Vertical", 3, 2, 6, 2),
    Sketcher.Constraint("Vertical", 9, 2, 12, 2),
    Sketcher.Constraint("Vertical", 11, 2, 14, 2),
    Sketcher.Constraint("Vertical", 13, 2, 16, 2),
    Sketcher.Constraint("Vertical", 15, 2, 18, 2),
    Sketcher.Constraint("Vertical", 17, 2, 20, 2),
    Sketcher.Constraint("Vertical", 19, 2, 22, 2),
    Sketcher.Constraint("Vertical", 5, 2, 24, 2),
    Sketcher.Constraint("Vertical", 7, 2, 26, 2),
    Sketcher.Constraint("Vertical", 25, 2, 28, 2),
    Sketcher.Constraint("Vertical", 27, 2, 30, 2),
    Sketcher.Constraint("Equal", 6, 8),
    Sketcher.Constraint("Equal", 3, 5),
    Sketcher.Constraint("Equal", 15, 17),
    Sketcher.Constraint("Equal", 19, 21),
    Sketcher.Constraint("DistanceX", 0, 2, 0, 1, Q("7 mm")),
    Sketcher.Constraint("DistanceY", 1, 1, 1, 2, Q("5 mm")),
    Sketcher.Constraint("DistanceX", -1, 1, 0, 2, Q("18 mm")),
    Sketcher.Constraint("DistanceX", -1, 1, 8, 2, Q("5 mm")),
    Sketcher.Constraint("DistanceY", 1, 2, 4, 2, Q("22 mm")),
    Sketcher.Constraint("DistanceY", 13, 2, 16, 2, Q("99 mm")),
    Sketcher.Constraint("DistanceY", 17, 2, 20, 2, Q("22 mm")),
    Sketcher.Constraint("DistanceY", 0, 2, -1, 1, Q("166.5 mm")),
])
pocket4 = body.newObject("PartDesign::Pocket", "Pocket003")
pocket4.Profile = sketch7
pocket4.Length = 10
pocket4.Reversed = True

# Sketch on YZ plane
sketch8 = body.newObject("Sketcher::SketchObject", "Sketch007")
sketch8.AttachmentSupport = (doc.getObject("YZ_Plane"), [""])
sketch8.MapMode = "FlatFace"
sketch8.AttachmentOffset = App.Placement(V(0, 0, 5), App.Rotation())
sketch8.addGeometry([
    Part.Circle(V(24.2, -165.9, 0), V(0, 0, 1), 1),  # 0
    Part.Circle(V(24.2, -162.1, 0), V(0, 0, 1), 1),  # 1
    Part.Circle(V(18.8, -165.9, 0), V(0, 0, 1), 1),  # 2
    Part.Circle(V(18.8, -162.1, 0), V(0, 0, 1), 1),  # 3
    Part.Circle(V(18.8, -138.9, 0), V(0, 0, 1), 1),  # 4
    Part.Circle(V(18.8, -135.1, 0), V(0, 0, 1), 1),  # 5
    Part.Circle(V(24.2, -138.9, 0), V(0, 0, 1), 1),  # 6
    Part.Circle(V(24.2, -135.1, 0), V(0, 0, 1), 1),  # 7
    Part.Circle(V(5.8, -135.1, 0), V(0, 0, 1), 1),  # 8
    Part.Circle(V(5.8, -138.9, 0), V(0, 0, 1), 1),  # 9
    Part.Circle(V(11.2, -135.1, 0), V(0, 0, 1), 1),  # 10
    Part.Circle(V(11.2, -138.9, 0), V(0, 0, 1), 1),  # 11
    Part.Circle(V(11.2, -162.1, 0), V(0, 0, 1), 1),  # 12
    Part.Circle(V(11.2, -165.9, 0), V(0, 0, 1), 1),  # 13
    Part.Circle(V(5.8, -162.1, 0), V(0, 0, 1), 1),  # 14
    Part.Circle(V(5.8, -165.9, 0), V(0, 0, 1), 1),  # 15
    Part.Circle(V(5.8, -4.1, 0), V(0, 0, 1), 1),  # 16
    Part.Circle(V(5.8, -7.9, 0), V(0, 0, 1), 1),  # 17
    Part.Circle(V(11.2, -4.1, 0), V(0, 0, 1), 1),  # 18
    Part.Circle(V(11.2, -7.9, 0), V(0, 0, 1), 1),  # 19
    Part.Circle(V(11.2, -31.1, 0), V(0, 0, 1), 1),  # 20
    Part.Circle(V(11.2, -34.9, 0), V(0, 0, 1), 1),  # 21
    Part.Circle(V(5.8, -31.1, 0), V(0, 0, 1), 1),  # 22
    Part.Circle(V(5.8, -34.9, 0), V(0, 0, 1), 1),  # 23
    Part.Circle(V(24.2, -34.9, 0), V(0, 0, 1), 1),  # 24
    Part.Circle(V(24.2, -31.1, 0), V(0, 0, 1), 1),  # 25
    Part.Circle(V(18.8, -34.9, 0), V(0, 0, 1), 1),  # 26
    Part.Circle(V(18.8, -31.1, 0), V(0, 0, 1), 1),  # 27
    Part.Circle(V(18.8, -7.9, 0), V(0, 0, 1), 1),  # 28
    Part.Circle(V(18.8, -4.1, 0), V(0, 0, 1), 1),  # 29
    Part.Circle(V(24.2, -7.9, 0), V(0, 0, 1), 1),  # 30
    Part.Circle(V(24.2, -4.1, 0), V(0, 0, 1), 1),  # 31
], False)
sketch8.addConstraint([
    Sketcher.Constraint("Equal", 0, 1),
    Sketcher.Constraint("Equal", 1, 2),
    Sketcher.Constraint("Equal", 2, 3),
    Sketcher.Constraint("Equal", 3, 4),
    Sketcher.Constraint("Equal", 4, 5),
    Sketcher.Constraint("Equal", 5, 6),
    Sketcher.Constraint("Equal", 6, 7),
    Sketcher.Constraint("Equal", 7, 8),
    Sketcher.Constraint("Equal", 8, 9),
    Sketcher.Constraint("Equal", 9, 10),
    Sketcher.Constraint("Equal", 10, 11),
    Sketcher.Constraint("Equal", 11, 12),
    Sketcher.Constraint("Equal", 12, 13),
    Sketcher.Constraint("Equal", 13, 14),
    Sketcher.Constraint("Equal", 14, 15),
    Sketcher.Constraint("Equal", 15, 16),
    Sketcher.Constraint("Equal", 16, 17),
    Sketcher.Constraint("Equal", 17, 18),
    Sketcher.Constraint("Equal", 18, 19),
    Sketcher.Constraint("Equal", 19, 20),
    Sketcher.Constraint("Equal", 20, 21),
    Sketcher.Constraint("Equal", 21, 22),
    Sketcher.Constraint("Equal", 22, 23),
    Sketcher.Constraint("Equal", 23, 24),
    Sketcher.Constraint("Equal", 24, 25),
    Sketcher.Constraint("Equal", 25, 26),
    Sketcher.Constraint("Equal", 26, 27),
    Sketcher.Constraint("Equal", 27, 28),
    Sketcher.Constraint("Equal", 28, 29),
    Sketcher.Constraint("Equal", 29, 30),
    Sketcher.Constraint("Equal", 30, 31),
    Sketcher.Constraint("Horizontal", 0, 3, 2, 3),
    Sketcher.Constraint("Horizontal", 1, 3, 3, 3),
    Sketcher.Constraint("Horizontal", 4, 3, 6, 3),
    Sketcher.Constraint("Horizontal", 5, 3, 7, 3),
    Sketcher.Constraint("Horizontal", 7, 3, 8, 3),
    Sketcher.Constraint("Horizontal", 6, 3, 9, 3),
    Sketcher.Constraint("Horizontal", 8, 3, 10, 3),
    Sketcher.Constraint("Horizontal", 9, 3, 11, 3),
    Sketcher.Constraint("Horizontal", 3, 3, 12, 3),
    Sketcher.Constraint("Horizontal", 2, 3, 13, 3),
    Sketcher.Constraint("Horizontal", 12, 3, 14, 3),
    Sketcher.Constraint("Horizontal", 13, 3, 15, 3),
    Sketcher.Constraint("Horizontal", 16, 3, 18, 3),
    Sketcher.Constraint("Horizontal", 17, 3, 19, 3),
    Sketcher.Constraint("Horizontal", 20, 3, 22, 3),
    Sketcher.Constraint("Horizontal", 21, 3, 23, 3),
    Sketcher.Constraint("Horizontal", 23, 3, 24, 3),
    Sketcher.Constraint("Horizontal", 22, 3, 25, 3),
    Sketcher.Constraint("Horizontal", 24, 3, 26, 3),
    Sketcher.Constraint("Horizontal", 25, 3, 27, 3),
    Sketcher.Constraint("Horizontal", 19, 3, 28, 3),
    Sketcher.Constraint("Horizontal", 18, 3, 29, 3),
    Sketcher.Constraint("Horizontal", 28, 3, 30, 3),
    Sketcher.Constraint("Horizontal", 29, 3, 31, 3),
    Sketcher.Constraint("Vertical", 0, 3, 1, 3),
    Sketcher.Constraint("Vertical", 2, 3, 3, 3),
    Sketcher.Constraint("Vertical", 3, 3, 4, 3),
    Sketcher.Constraint("Vertical", 4, 3, 5, 3),
    Sketcher.Constraint("Vertical", 1, 3, 6, 3),
    Sketcher.Constraint("Vertical", 6, 3, 7, 3),
    Sketcher.Constraint("Vertical", 8, 3, 9, 3),
    Sketcher.Constraint("Vertical", 10, 3, 11, 3),
    Sketcher.Constraint("Vertical", 11, 3, 12, 3),
    Sketcher.Constraint("Vertical", 12, 3, 13, 3),
    Sketcher.Constraint("Vertical", 9, 3, 14, 3),
    Sketcher.Constraint("Vertical", 14, 3, 15, 3),
    Sketcher.Constraint("Vertical", 15, 3, 16, 3),
    Sketcher.Constraint("Vertical", 16, 3, 17, 3),
    Sketcher.Constraint("Vertical", 13, 3, 18, 3),
    Sketcher.Constraint("Vertical", 18, 3, 19, 3),
    Sketcher.Constraint("Vertical", 19, 3, 20, 3),
    Sketcher.Constraint("Vertical", 20, 3, 21, 3),
    Sketcher.Constraint("Vertical", 17, 3, 22, 3),
    Sketcher.Constraint("Vertical", 22, 3, 23, 3),
    Sketcher.Constraint("Vertical", 7, 3, 24, 3),
    Sketcher.Constraint("Vertical", 24, 3, 25, 3),
    Sketcher.Constraint("Vertical", 5, 3, 26, 3),
    Sketcher.Constraint("Vertical", 26, 3, 27, 3),
    Sketcher.Constraint("Vertical", 27, 3, 28, 3),
    Sketcher.Constraint("Vertical", 28, 3, 29, 3),
    Sketcher.Constraint("Vertical", 25, 3, 30, 3),
    Sketcher.Constraint("Vertical", 30, 3, 31, 3),
    Sketcher.Constraint("Diameter", 0, Q("2 mm")),
    Sketcher.Constraint("DistanceY", 2, 3, 4, 3, Q("27 mm")),
    Sketcher.Constraint("DistanceY", 3, 3, 5, 3, Q("27 mm")),
    Sketcher.Constraint("DistanceX", 8, 3, 5, 3, Q("13 mm")),
    Sketcher.Constraint("DistanceX", 10, 3, 7, 3, Q("13 mm")),
    Sketcher.Constraint("DistanceY", 8, 3, 16, 3, Q("131 mm")),
    Sketcher.Constraint("DistanceY", 20, 3, 18, 3, Q("27 mm")),
    Sketcher.Constraint("DistanceY", 21, 3, 19, 3, Q("27 mm")),
    Sketcher.Constraint("DistanceY", 0, 3, -1, 1, Q("165.918762 mm")),
    Sketcher.Constraint("DistanceY", 1, 3, -1, 1, Q("162.081238 mm")),
    Sketcher.Constraint("DistanceY", 17, 3, -1, 1, Q("7.918762 mm")),
    Sketcher.Constraint("DistanceX", -1, 1, 0, 3, Q("24.186267 mm")),
    Sketcher.Constraint("DistanceX", -1, 1, 2, 3, Q("18.813733 mm")),
])
pocket5 = body.newObject("PartDesign::Pocket", "Pocket004")
pocket5.Profile = sketch8
pocket5.Length = 10

doc.recompute()
